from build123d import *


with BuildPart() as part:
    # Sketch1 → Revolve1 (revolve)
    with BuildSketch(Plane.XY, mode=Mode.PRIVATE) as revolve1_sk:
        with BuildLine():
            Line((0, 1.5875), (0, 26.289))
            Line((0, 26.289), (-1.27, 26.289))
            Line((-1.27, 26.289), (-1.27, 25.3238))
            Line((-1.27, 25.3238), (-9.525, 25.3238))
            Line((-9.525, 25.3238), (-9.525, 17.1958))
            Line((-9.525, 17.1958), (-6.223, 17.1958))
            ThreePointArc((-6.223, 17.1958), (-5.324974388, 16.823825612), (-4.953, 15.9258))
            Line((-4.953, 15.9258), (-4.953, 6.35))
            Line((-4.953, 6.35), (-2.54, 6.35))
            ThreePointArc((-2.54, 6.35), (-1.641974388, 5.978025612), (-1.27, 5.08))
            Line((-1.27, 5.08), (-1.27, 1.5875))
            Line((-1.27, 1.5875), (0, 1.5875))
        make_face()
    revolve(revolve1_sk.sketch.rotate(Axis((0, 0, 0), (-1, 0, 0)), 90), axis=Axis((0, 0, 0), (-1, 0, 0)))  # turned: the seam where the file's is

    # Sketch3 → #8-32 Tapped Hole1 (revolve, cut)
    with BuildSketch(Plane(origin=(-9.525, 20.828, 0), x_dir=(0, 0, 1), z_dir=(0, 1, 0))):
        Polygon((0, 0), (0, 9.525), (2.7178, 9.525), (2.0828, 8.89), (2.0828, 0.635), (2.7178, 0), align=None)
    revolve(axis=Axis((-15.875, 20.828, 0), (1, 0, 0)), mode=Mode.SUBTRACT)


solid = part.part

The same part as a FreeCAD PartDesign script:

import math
import FreeCAD as App
import Part
import Sketcher
Q = App.Units.Quantity


def add_polygon(sketch, points):
    """Adds a closed chain of lines whose ends are joined by coincident constraints."""
    first, n = sketch.GeometryCount, len(points)
    for a, b in zip(points, points[1:] + points[:1]):
        sketch.addGeometry(Part.LineSegment(App.Vector(*a, 0), App.Vector(*b, 0)), False)
    for i in range(n):
        sketch.addConstraint(Sketcher.Constraint("Coincident", first + i, 2, first + (i + 1) % n, 1))

doc = App.newDocument("Part")
body = doc.addObject("PartDesign::Body", "Body")

# Sketch on XY plane
sketch1 = body.newObject("Sketcher::SketchObject", "Sketch")
sketch1.AttachmentSupport = (doc.getObject("XY_Plane"), [""])
sketch1.MapMode = "FlatFace"
sketch1.addGeometry(Part.LineSegment(App.Vector(0, 1.6, 0), App.Vector(0, 26.3, 0)), False)
sketch1.addGeometry(Part.LineSegment(App.Vector(0, 26.3, 0), App.Vector(-1.3, 26.3, 0)), False)
sketch1.addGeometry(Part.LineSegment(App.Vector(-1.3, 26.3, 0), App.Vector(-1.3, 25.3, 0)), False)
sketch1.addGeometry(Part.LineSegment(App.Vector(-1.3, 25.3, 0), App.Vector(-9.5, 25.3, 0)), False)
sketch1.addGeometry(Part.LineSegment(App.Vector(-9.5, 25.3, 0), App.Vector(-9.5, 17.2, 0)), False)
sketch1.addGeometry(Part.LineSegment(App.Vector(-9.5, 17.2, 0), App.Vector(-6.2, 17.2, 0)), False)
sketch1.addGeometry(Part.ArcOfCircle(Part.Circle(App.Vector(-6.2, 15.9, 0), App.Vector(0, 0, 1), 1.3), math.radians(0), math.radians(90)), False)
sketch1.addGeometry(Part.LineSegment(App.Vector(-5, 15.9, 0), App.Vector(-5, 6.3, 0)), False)
sketch1.addGeometry(Part.LineSegment(App.Vector(-5, 6.3, 0), App.Vector(-2.5, 6.3, 0)), False)
sketch1.addGeometry(Part.ArcOfCircle(Part.Circle(App.Vector(-2.5, 5.1, 0), App.Vector(0, 0, 1), 1.3), math.radians(0), math.radians(90)), False)
sketch1.addGeometry(Part.LineSegment(App.Vector(-1.3, 5.1, 0), App.Vector(-1.3, 1.6, 0)), False)
sketch1.addGeometry(Part.LineSegment(App.Vector(-1.3, 1.6, 0), App.Vector(0, 1.6, 0)), False)
sketch1.addConstraint(Sketcher.Constraint("Coincident", 0, 2, 1, 1))
sketch1.addConstraint(Sketcher.Constraint("Coincident", 1, 2, 2, 1))
sketch1.addConstraint(Sketcher.Constraint("Coincident", 2, 2, 3, 1))
sketch1.addConstraint(Sketcher.Constraint("Coincident", 3, 2, 4, 1))
sketch1.addConstraint(Sketcher.Constraint("Coincident", 4, 2, 5, 1))
sketch1.addConstraint(Sketcher.Constraint("Tangent", 5, 2, 6, 2))
sketch1.addConstraint(Sketcher.Constraint("Tangent", 6, 1, 7, 1))
sketch1.addConstraint(Sketcher.Constraint("Coincident", 7, 2, 8, 1))
sketch1.addConstraint(Sketcher.Constraint("Tangent", 8, 2, 9, 2))
sketch1.addConstraint(Sketcher.Constraint("Tangent", 9, 1, 10, 1))
sketch1.addConstraint(Sketcher.Constraint("Coincident", 10, 2, 11, 1))
sketch1.addConstraint(Sketcher.Constraint("Coincident", 11, 2, 0, 1))
sketch1.addConstraint(Sketcher.Constraint("Vertical", 0))
sketch1.addConstraint(Sketcher.Constraint("Horizontal", 1))
sketch1.addConstraint(Sketcher.Constraint("Vertical", 2))
sketch1.addConstraint(Sketcher.Constraint("Horizontal", 3))
sketch1.addConstraint(Sketcher.Constraint("Vertical", 4))
sketch1.addConstraint(Sketcher.Constraint("Horizontal", 5))
sketch1.addConstraint(Sketcher.Constraint("Vertical", 7))
sketch1.addConstraint(Sketcher.Constraint("Horizontal", 8))
sketch1.addConstraint(Sketcher.Constraint("Vertical", 10))
sketch1.addConstraint(Sketcher.Constraint("Horizontal", 11))
sketch1.addConstraint(Sketcher.Constraint("Equal", 6, 9))
sketch1.addConstraint(Sketcher.Constraint("PointOnObject", 0, 2, -2))
sketch1.addConstraint(Sketcher.Constraint("Vertical", 2, 2, 9, 1))
sketch1.addConstraint(Sketcher.Constraint("Radius", 6, Q("0.05 in")))
sketch1.addConstraint(Sketcher.Constraint("DistanceX", 1, 2, 1, 1, Q("0.05 in")))
sketch1.addConstraint(Sketcher.Constraint("DistanceX", 5, 1, 5, 2, Q("0.13 in")))
sketch1.addConstraint(Sketcher.Constraint("DistanceY", 4, 2, 4, 1, Q("0.32 in")))
sketch1.addConstraint(Sketcher.Constraint("DistanceY", -1, 1, 9, 3, Q("0.2 in")))
sketch1.addConstraint(Sketcher.Constraint("DistanceX", 3, 2, 3, 1, Q("0.325 in")))
sketch1.addConstraint(Sketcher.Constraint("DistanceY", 2, 2, 2, 1, Q("0.038 in")))
sketch1.addConstraint(Sketcher.Constraint("DistanceY", 7, 2, 7, 1, Q("0.377 in")))
sketch1.addConstraint(Sketcher.Constraint("DistanceY", 0, 1, 0, 2, Q("0.9725 in")))
revolution = body.newObject("PartDesign::Revolution", "Revolution")
revolution.Profile = sketch1
revolution.ReferenceAxis = (sketch1, ["H_Axis"])
revolution.Angle = 360

# Sketch on XZ plane
sketch2 = body.newObject("Sketcher::SketchObject", "Sketch001")
sketch2.AttachmentSupport = (doc.getObject("XZ_Plane"), [""])
sketch2.MapMode = "FlatFace"
sketch2.AttachmentOffset = App.Placement(App.Vector(0, 0, -0.82 * 25.4), App.Rotation())
add_polygon(sketch2, [(0, 0), (-9.5, 0), (-9.5, 2.7), (-8.9, 2.1), (-0.6, 2.1), (0, 2.7)])  # lines 0-5
sketch2.addConstraint(Sketcher.Constraint("Horizontal", 0))
sketch2.addConstraint(Sketcher.Constraint("Vertical", 1))
sketch2.addConstraint(Sketcher.Constraint("Horizontal", 3))
sketch2.addConstraint(Sketcher.Constraint("Vertical", 5))
sketch2.addConstraint(Sketcher.Constraint("Coincident", 5, 2, -1, 1))
sketch2.addConstraint(Sketcher.Constraint("Perpendicular", 2, 4))
sketch2.addConstraint(Sketcher.Constraint("Horizontal", 1, 2, 4, 2))
sketch2.addConstraint(Sketcher.Constraint("Equal", 2, 4))
sketch2.addConstraint(Sketcher.Constraint("DistanceX", 0, 2, 0, 1, Q("0.375 in")))
sketch2.addConstraint(Sketcher.Constraint("DistanceX", 3, 1, 3, 2, Q("0.325 in")))
sketch2.addConstraint(Sketcher.Constraint("DistanceY", 1, 1, 1, 2, Q("0.107 in")))
groove = body.newObject("PartDesign::Groove", "Groove")
groove.Profile = sketch2
groove.ReferenceAxis = (sketch2, ["H_Axis"])
groove.Angle = 360

doc.recompute()
